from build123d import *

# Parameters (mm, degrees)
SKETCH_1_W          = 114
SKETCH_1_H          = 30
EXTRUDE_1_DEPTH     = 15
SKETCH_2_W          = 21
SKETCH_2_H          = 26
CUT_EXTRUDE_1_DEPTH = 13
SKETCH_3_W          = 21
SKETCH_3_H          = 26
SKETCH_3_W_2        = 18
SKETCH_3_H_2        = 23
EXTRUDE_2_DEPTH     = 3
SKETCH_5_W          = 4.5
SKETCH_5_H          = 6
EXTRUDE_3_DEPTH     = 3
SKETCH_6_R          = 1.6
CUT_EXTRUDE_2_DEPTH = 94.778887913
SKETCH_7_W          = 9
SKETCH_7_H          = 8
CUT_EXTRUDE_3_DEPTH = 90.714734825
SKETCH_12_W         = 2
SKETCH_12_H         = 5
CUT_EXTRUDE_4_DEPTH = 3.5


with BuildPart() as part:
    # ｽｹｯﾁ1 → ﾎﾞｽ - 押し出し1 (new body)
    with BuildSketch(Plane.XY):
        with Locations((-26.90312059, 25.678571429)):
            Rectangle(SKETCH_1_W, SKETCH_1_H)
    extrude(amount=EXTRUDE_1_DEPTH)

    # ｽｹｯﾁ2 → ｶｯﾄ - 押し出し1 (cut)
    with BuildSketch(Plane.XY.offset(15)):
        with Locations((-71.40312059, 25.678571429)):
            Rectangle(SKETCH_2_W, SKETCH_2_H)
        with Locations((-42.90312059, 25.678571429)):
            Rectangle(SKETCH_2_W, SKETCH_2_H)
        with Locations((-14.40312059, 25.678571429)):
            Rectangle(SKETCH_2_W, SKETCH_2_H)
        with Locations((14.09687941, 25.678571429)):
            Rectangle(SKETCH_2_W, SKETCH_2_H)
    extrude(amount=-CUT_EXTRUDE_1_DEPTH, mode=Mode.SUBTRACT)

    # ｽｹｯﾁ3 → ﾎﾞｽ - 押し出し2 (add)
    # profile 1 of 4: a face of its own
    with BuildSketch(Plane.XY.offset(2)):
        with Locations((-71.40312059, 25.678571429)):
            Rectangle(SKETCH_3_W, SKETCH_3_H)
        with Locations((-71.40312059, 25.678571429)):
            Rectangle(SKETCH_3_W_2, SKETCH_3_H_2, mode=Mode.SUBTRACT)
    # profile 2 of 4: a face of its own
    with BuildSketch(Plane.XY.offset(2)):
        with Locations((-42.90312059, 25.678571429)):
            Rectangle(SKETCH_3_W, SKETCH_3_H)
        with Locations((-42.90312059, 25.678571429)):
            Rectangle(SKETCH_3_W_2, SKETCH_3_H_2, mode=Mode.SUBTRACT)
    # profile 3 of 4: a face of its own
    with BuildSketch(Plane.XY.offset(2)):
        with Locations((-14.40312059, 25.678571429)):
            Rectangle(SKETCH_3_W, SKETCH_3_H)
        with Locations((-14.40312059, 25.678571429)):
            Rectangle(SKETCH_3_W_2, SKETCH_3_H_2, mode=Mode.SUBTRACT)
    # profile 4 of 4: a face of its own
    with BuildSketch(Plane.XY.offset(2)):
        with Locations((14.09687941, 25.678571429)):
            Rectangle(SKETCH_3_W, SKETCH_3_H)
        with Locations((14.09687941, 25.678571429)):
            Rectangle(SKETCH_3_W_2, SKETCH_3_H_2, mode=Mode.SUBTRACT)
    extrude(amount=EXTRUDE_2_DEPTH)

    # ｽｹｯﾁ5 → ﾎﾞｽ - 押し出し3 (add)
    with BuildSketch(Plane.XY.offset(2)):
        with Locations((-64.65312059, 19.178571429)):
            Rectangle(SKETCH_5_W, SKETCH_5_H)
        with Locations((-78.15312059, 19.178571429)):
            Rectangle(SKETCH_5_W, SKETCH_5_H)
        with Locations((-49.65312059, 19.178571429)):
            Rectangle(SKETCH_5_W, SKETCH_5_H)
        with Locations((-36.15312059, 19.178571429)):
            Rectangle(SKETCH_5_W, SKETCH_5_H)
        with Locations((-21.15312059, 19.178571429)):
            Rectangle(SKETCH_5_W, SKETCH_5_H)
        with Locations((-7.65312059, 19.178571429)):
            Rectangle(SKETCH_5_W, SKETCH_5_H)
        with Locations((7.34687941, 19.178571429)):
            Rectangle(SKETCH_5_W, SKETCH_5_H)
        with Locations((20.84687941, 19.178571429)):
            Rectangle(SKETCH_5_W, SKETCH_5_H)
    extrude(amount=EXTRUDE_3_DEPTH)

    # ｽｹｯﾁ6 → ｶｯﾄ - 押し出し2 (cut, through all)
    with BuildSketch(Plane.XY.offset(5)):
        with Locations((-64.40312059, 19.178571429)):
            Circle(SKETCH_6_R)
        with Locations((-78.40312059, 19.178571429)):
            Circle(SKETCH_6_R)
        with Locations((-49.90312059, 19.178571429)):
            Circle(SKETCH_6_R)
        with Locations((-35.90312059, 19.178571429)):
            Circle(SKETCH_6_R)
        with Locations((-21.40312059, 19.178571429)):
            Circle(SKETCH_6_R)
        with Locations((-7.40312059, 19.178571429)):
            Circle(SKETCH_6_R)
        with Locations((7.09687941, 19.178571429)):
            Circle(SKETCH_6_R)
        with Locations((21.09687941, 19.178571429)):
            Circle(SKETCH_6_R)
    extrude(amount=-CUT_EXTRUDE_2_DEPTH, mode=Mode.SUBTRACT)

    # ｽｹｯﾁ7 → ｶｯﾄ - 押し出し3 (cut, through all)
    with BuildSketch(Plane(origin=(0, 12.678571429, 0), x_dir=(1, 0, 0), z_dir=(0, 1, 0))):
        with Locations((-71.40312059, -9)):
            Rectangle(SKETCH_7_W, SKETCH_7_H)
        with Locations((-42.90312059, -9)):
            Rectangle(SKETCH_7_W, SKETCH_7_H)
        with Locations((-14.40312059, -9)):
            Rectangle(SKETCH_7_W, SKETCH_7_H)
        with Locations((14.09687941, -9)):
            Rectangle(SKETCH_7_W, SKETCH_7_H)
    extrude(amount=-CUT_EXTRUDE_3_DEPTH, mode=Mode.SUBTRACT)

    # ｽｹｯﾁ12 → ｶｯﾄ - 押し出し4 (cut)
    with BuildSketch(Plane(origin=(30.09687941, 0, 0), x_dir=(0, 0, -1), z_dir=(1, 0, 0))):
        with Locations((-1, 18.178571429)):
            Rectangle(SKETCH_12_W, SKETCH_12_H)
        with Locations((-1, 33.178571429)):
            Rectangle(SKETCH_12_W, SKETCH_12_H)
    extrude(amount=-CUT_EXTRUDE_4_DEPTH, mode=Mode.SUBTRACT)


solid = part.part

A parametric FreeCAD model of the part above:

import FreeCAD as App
import Part
import Sketcher

V = App.Vector
Q = App.Units.Quantity


def add_polygon(sketch, points):
    """Adds a closed chain of lines whose ends are joined by coincident constraints."""
    first, n = sketch.GeometryCount, len(points)
    for a, b in zip(points, points[1:] + points[:1]):
        sketch.addGeometry(Part.LineSegment(App.Vector(*a, 0), App.Vector(*b, 0)), False)
    for i in range(n):
        sketch.addConstraint(Sketcher.Constraint("Coincident", first + i, 2, first + (i + 1) % n, 1))

doc = App.newDocument("Part")
body = doc.addObject("PartDesign::Body", "Body")

# Sketch on XY plane
sketch1 = doc.addObject("Sketcher::SketchObject", "Sketch")
body.addObject(sketch1)
sketch1.AttachmentSupport = (doc.XY_Plane, [""])
sketch1.MapMode = "FlatFace"
add_polygon(sketch1, [(-83.903121, 40.678571), (-83.903121, 10.678571), (30.096879, 10.678571), (30.096879, 40.678571)])  # lines 0-3
sketch1.addConstraint([
    Sketcher.Constraint("Vertical", 0),
    Sketcher.Constraint("Horizontal", 1),
    Sketcher.Constraint("Vertical", 2),
    Sketcher.Constraint("Horizontal", 3),
    Sketcher.Constraint("DistanceX", 1, 1, 1, 2, Q("114 mm")),
    Sketcher.Constraint("DistanceY", 0, 2, 0, 1, Q("30 mm")),
    Sketcher.Constraint("DistanceX", 0, 2, -1, 1, Q("83.903121 mm")),
    Sketcher.Constraint("DistanceY", -1, 1, 0, 2, Q("10.678571 mm")),
])
pad1 = doc.addObject("PartDesign::Pad", "Pad")
body.addObject(pad1)
pad1.Profile = sketch1
pad1.Length = 15

# Sketch on XY plane
sketch2 = doc.addObject("Sketcher::SketchObject", "Sketch001")
body.addObject(sketch2)
sketch2.AttachmentSupport = (doc.XY_Plane, [""])
sketch2.MapMode = "FlatFace"
sketch2.AttachmentOffset = App.Placement(V(0, 0, 15), App.Rotation())
add_polygon(sketch2, [(-81.903121, 38.678571), (-81.903121, 12.678571), (-60.903121, 12.678571), (-60.903121, 38.678571)])  # lines 0-3
add_polygon(sketch2, [(-53.403121, 38.678571), (-53.403121, 12.678571), (-32.403121, 12.678571), (-32.403121, 38.678571)])  # lines 4-7
add_polygon(sketch2, [(-24.903121, 38.678571), (-24.903121, 12.678571), (-3.903121, 12.678571), (-3.903121, 38.678571)])  # lines 8-11
add_polygon(sketch2, [(3.596879, 38.678571), (3.596879, 12.678571), (24.596879, 12.678571), (24.596879, 38.678571)])  # lines 12-15
sketch2.addConstraint([
    Sketcher.Constraint("Vertical", 0),
    Sketcher.Constraint("Horizontal", 1),
    Sketcher.Constraint("Vertical", 2),
    Sketcher.Constraint("Horizontal", 3),
    Sketcher.Constraint("Vertical", 4),
    Sketcher.Constraint("Horizontal", 5),
    Sketcher.Constraint("Vertical", 6),
    Sketcher.Constraint("Horizontal", 7),
    Sketcher.Constraint("Vertical", 8),
    Sketcher.Constraint("Horizontal", 9),
    Sketcher.Constraint("Vertical", 10),
    Sketcher.Constraint("Horizontal", 11),
    Sketcher.Constraint("Vertical", 12),
    Sketcher.Constraint("Horizontal", 13),
    Sketcher.Constraint("Vertical", 14),
    Sketcher.Constraint("Horizontal", 15),
    Sketcher.Constraint("Horizontal", 1, 2, 4, 2),
    Sketcher.Constraint("Horizontal", 3, 2, 6, 2),
    Sketcher.Constraint("Horizontal", 5, 2, 8, 2),
    Sketcher.Constraint("Horizontal", 7, 2, 10, 2),
    Sketcher.Constraint("Horizontal", 9, 2, 12, 2),
    Sketcher.Constraint("Horizontal", 11, 2, 14, 2),
    Sketcher.Constraint("Equal", 3, 5),
    Sketcher.Constraint("Equal", 7, 9),
    Sketcher.Constraint("Equal", 11, 13),
    Sketcher.Constraint("DistanceX", 1, 1, 1, 2, Q("21 mm")),
    Sketcher.Constraint("DistanceY", 0, 2, 0, 1, Q("26 mm")),
    Sketcher.Constraint("DistanceX", 1, 2, 8, 2, Q("36 mm")),
    Sketcher.Constraint("DistanceX", 5, 2, 12, 2, Q("36 mm")),
    Sketcher.Constraint("DistanceX", 1, 2, 4, 2, Q("7.5 mm")),
    Sketcher.Constraint("DistanceX", 0, 2, -1, 1, Q("81.903121 mm")),
    Sketcher.Constraint("DistanceY", -1, 1, 0, 2, Q("12.678571 mm")),
])
pocket1 = doc.addObject("PartDesign::Pocket", "Pocket")
body.addObject(pocket1)
pocket1.Profile = sketch2
pocket1.Length = 13

# Sketch on XY plane
sketch3 = doc.addObject("Sketcher::SketchObject", "Sketch002")
body.addObject(sketch3)
sketch3.AttachmentSupport = (doc.XY_Plane, [""])
sketch3.MapMode = "FlatFace"
sketch3.AttachmentOffset = App.Placement(V(0, 0, 2), App.Rotation())
add_polygon(sketch3, [(-81.903121, 38.678571), (-81.903121, 12.678571), (-60.903121, 12.678571), (-60.903121, 38.678571)])  # lines 0-3
add_polygon(sketch3, [(-62.403121, 14.178571), (-80.403121, 14.178571), (-80.403121, 37.178571), (-62.403121, 37.178571)])  # lines 4-7
add_polygon(sketch3, [(-53.403121, 38.678571), (-53.403121, 12.678571), (-32.403121, 12.678571), (-32.403121, 38.678571)])  # lines 8-11
add_polygon(sketch3, [(-33.903121, 14.178571), (-51.903121, 14.178571), (-51.903121, 37.178571), (-33.903121, 37.178571)])  # lines 12-15
add_polygon(sketch3, [(-24.903121, 38.678571), (-24.903121, 12.678571), (-3.903121, 12.678571), (-3.903121, 38.678571)])  # lines 16-19
add_polygon(sketch3, [(-5.403121, 14.178571), (-23.403121, 14.178571), (-23.403121, 37.178571), (-5.403121, 37.178571)])  # lines 20-23
add_polygon(sketch3, [(3.596879, 38.678571), (3.596879, 12.678571), (24.596879, 12.678571), (24.596879, 38.678571)])  # lines 24-27
add_polygon(sketch3, [(23.096879, 14.178571), (5.096879, 14.178571), (5.096879, 37.178571), (23.096879, 37.178571)])  # lines 28-31
sketch3.addConstraint([
    Sketcher.Constraint("Vertical", 0),
    Sketcher.Constraint("Horizontal", 1),
    Sketcher.Constraint("Vertical", 2),
    Sketcher.Constraint("Horizontal", 3),
    Sketcher.Constraint("Horizontal", 4),
    Sketcher.Constraint("Vertical", 5),
    Sketcher.Constraint("Horizontal", 6),
    Sketcher.Constraint("Vertical", 7),
    Sketcher.Constraint("Vertical", 8),
    Sketcher.Constraint("Horizontal", 9),
    Sketcher.Constraint("Vertical", 10),
    Sketcher.Constraint("Horizontal", 11),
    Sketcher.Constraint("Horizontal", 12),
    Sketcher.Constraint("Vertical", 13),
    Sketcher.Constraint("Horizontal", 14),
    Sketcher.Constraint("Vertical", 15),
    Sketcher.Constraint("Vertical", 16),
    Sketcher.Constraint("Horizontal", 17),
    Sketcher.Constraint("Vertical", 18),
    Sketcher.Constraint("Horizontal", 19),
    Sketcher.Constraint("Horizontal", 20),
    Sketcher.Constraint("Vertical", 21),
    Sketcher.Constraint("Horizontal", 22),
    Sketcher.Constraint("Vertical", 23),
    Sketcher.Constraint("Vertical", 24),
    Sketcher.Constraint("Horizontal", 25),
    Sketcher.Constraint("Vertical", 26),
    Sketcher.Constraint("Horizontal", 27),
    Sketcher.Constraint("Horizontal", 28),
    Sketcher.Constraint("Vertical", 29),
    Sketcher.Constraint("Horizontal", 30),
    Sketcher.Constraint("Vertical", 31),
    Sketcher.Constraint("Horizontal", 1, 2, 8, 2),
    Sketcher.Constraint("Horizontal", 3, 2, 10, 2),
    Sketcher.Constraint("Horizontal", 7, 2, 12, 2),
    Sketcher.Constraint("Horizontal", 6, 2, 13, 2),
    Sketcher.Constraint("Horizontal", 9, 2, 16, 2),
    Sketcher.Constraint("Horizontal", 11, 2, 18, 2),
    Sketcher.Constraint("Horizontal", 15, 2, 20, 2),
    Sketcher.Constraint("Horizontal", 14, 2, 21, 2),
    Sketcher.Constraint("Horizontal", 17, 2, 24, 2),
    Sketcher.Constraint("Horizontal", 19, 2, 26, 2),
    Sketcher.Constraint("Horizontal", 23, 2, 28, 2),
    Sketcher.Constraint("Horizontal", 22, 2, 29, 2),
    Sketcher.Constraint("Equal", 3, 9),
    Sketcher.Constraint("Equal", 6, 12),
    Sketcher.Constraint("Equal", 11, 17),
    Sketcher.Constraint("Equal", 14, 20),
    Sketcher.Constraint("Equal", 19, 25),
    Sketcher.Constraint("Equal", 22, 28),
    Sketcher.Constraint("DistanceX", 1, 1, 1, 2, Q("21 mm")),
    Sketcher.Constraint("DistanceX", 4, 2, 4, 1, Q("18 mm")),
    Sketcher.Constraint("DistanceY", 0, 2, 0, 1, Q("26 mm")),
    Sketcher.Constraint("DistanceY", 5, 1, 5, 2, Q("23 mm")),
    Sketcher.Constraint("DistanceX", 7, 2, 8, 2, Q("9 mm")),
    Sketcher.Constraint("DistanceX", 1, 2, 12, 2, Q("9 mm")),
    Sketcher.Constraint("DistanceX", 15, 2, 16, 2, Q("9 mm")),
    Sketcher.Constraint("DistanceX", 9, 2, 20, 2, Q("9 mm")),
    Sketcher.Constraint("DistanceX", 23, 2, 24, 2, Q("9 mm")),
    Sketcher.Constraint("DistanceX", 17, 2, 28, 2, Q("9 mm")),
    Sketcher.Constraint("DistanceX", 0, 2, 4, 2, Q("1.5 mm")),
    Sketcher.Constraint("DistanceY", 0, 2, 4, 2, Q("1.5 mm")),
    Sketcher.Constraint("DistanceX", 0, 2, -1, 1, Q("81.903121 mm")),
    Sketcher.Constraint("DistanceY", -1, 1, 0, 2, Q("12.678571 mm")),
])
pad2 = doc.addObject("PartDesign::Pad", "Pad001")
body.addObject(pad2)
pad2.Profile = sketch3
pad2.Length = 3

# Sketch on XY plane
sketch4 = doc.addObject("Sketcher::SketchObject", "Sketch003")
body.addObject(sketch4)
sketch4.AttachmentSupport = (doc.XY_Plane, [""])
sketch4.MapMode = "FlatFace"
sketch4.AttachmentOffset = App.Placement(V(0, 0, 2), App.Rotation())
add_polygon(sketch4, [(-66.903121, 22.178571), (-66.903121, 16.178571), (-62.403121, 16.178571), (-62.403121, 22.178571)])  # lines 0-3
add_polygon(sketch4, [(-80.403121, 22.178571), (-80.403121, 16.178571), (-75.903121, 16.178571), (-75.903121, 22.178571)])  # lines 4-7
add_polygon(sketch4, [(-51.903121, 22.178571), (-51.903121, 16.178571), (-47.403121, 16.178571), (-47.403121, 22.178571)])  # lines 8-11
add_polygon(sketch4, [(-38.403121, 22.178571), (-38.403121, 16.178571), (-33.903121, 16.178571), (-33.903121, 22.178571)])  # lines 12-15
add_polygon(sketch4, [(-23.403121, 22.178571), (-23.403121, 16.178571), (-18.903121, 16.178571), (-18.903121, 22.178571)])  # lines 16-19
add_polygon(sketch4, [(-9.903121, 22.178571), (-9.903121, 16.178571), (-5.403121, 16.178571), (-5.403121, 22.178571)])  # lines 20-23
add_polygon(sketch4, [(5.096879, 22.178571), (5.096879, 16.178571), (9.596879, 16.178571), (9.596879, 22.178571)])  # lines 24-27
add_polygon(sketch4, [(18.596879, 22.178571), (18.596879, 16.178571), (23.096879, 16.178571), (23.096879, 22.178571)])  # lines 28-31
sketch4.addConstraint([
    Sketcher.Constraint("Vertical", 0),
    Sketcher.Constraint("Horizontal", 1),
    Sketcher.Constraint("Vertical", 2),
    Sketcher.Constraint("Horizontal", 3),
    Sketcher.Constraint("Vertical", 4),
    Sketcher.Constraint("Horizontal", 5),
    Sketcher.Constraint("Vertical", 6),
    Sketcher.Constraint("Horizontal", 7),
    Sketcher.Constraint("Vertical", 8),
    Sketcher.Constraint("Horizontal", 9),
    Sketcher.Constraint("Vertical", 10),
    Sketcher.Constraint("Horizontal", 11),
    Sketcher.Constraint("Vertical", 12),
    Sketcher.Constraint("Horizontal", 13),
    Sketcher.Constraint("Vertical", 14),
    Sketcher.Constraint("Horizontal", 15),
    Sketcher.Constraint("Vertical", 16),
    Sketcher.Constraint("Horizontal", 17),
    Sketcher.Constraint("Vertical", 18),
    Sketcher.Constraint("Horizontal", 19),
    Sketcher.Constraint("Vertical", 20),
    Sketcher.Constraint("Horizontal", 21),
    Sketcher.Constraint("Vertical", 22),
    Sketcher.Constraint("Horizontal", 23),
    Sketcher.Constraint("Vertical", 24),
    Sketcher.Constraint("Horizontal", 25),
    Sketcher.Constraint("Vertical", 26),
    Sketcher.Constraint("Horizontal", 27),
    Sketcher.Constraint("Vertical", 28),
    Sketcher.Constraint("Horizontal", 29),
    Sketcher.Constraint("Vertical", 30),
    Sketcher.Constraint("Horizontal", 31),
    Sketcher.Constraint("Horizontal", 1, 2, 4, 2),
    Sketcher.Constraint("Horizontal", 3, 2, 6, 2),
    Sketcher.Constraint("Horizontal", 5, 2, 8, 2),
    Sketcher.Constraint("Horizontal", 7, 2, 10, 2),
    Sketcher.Constraint("Horizontal", 9, 2, 12, 2),
    Sketcher.Constraint("Horizontal", 11, 2, 14, 2),
    Sketcher.Constraint("Horizontal", 13, 2, 16, 2),
    Sketcher.Constraint("Horizontal", 15, 2, 18, 2),
    Sketcher.Constraint("Horizontal", 17, 2, 20, 2),
    Sketcher.Constraint("Horizontal", 19, 2, 22, 2),
    Sketcher.Constraint("Horizontal", 21, 2, 24, 2),
    Sketcher.Constraint("Horizontal", 23, 2, 26, 2),
    Sketcher.Constraint("Horizontal", 25, 2, 28, 2),
    Sketcher.Constraint("Horizontal", 27, 2, 30, 2),
    Sketcher.Constraint("Equal", 3, 5),
    Sketcher.Constraint("Equal", 7, 9),
    Sketcher.Constraint("Equal", 11, 13),
    Sketcher.Constraint("Equal", 15, 17),
    Sketcher.Constraint("Equal", 19, 21),
    Sketcher.Constraint("Equal", 23, 25),
    Sketcher.Constraint("Equal", 27, 29),
    Sketcher.Constraint("DistanceY", 0, 2, 0, 1, Q("6 mm")),
    Sketcher.Constraint("DistanceX", 1, 1, 1, 2, Q("4.5 mm")),
    Sketcher.Constraint("DistanceX", 4, 2, 1, 2, Q("18 mm")),
    Sketcher.Constraint("DistanceX", 0, 2, 8, 2, Q("15 mm")),
    Sketcher.Constraint("DistanceX", 9, 2, 12, 2, Q("9 mm")),
    Sketcher.Constraint("DistanceX", 12, 2, 16, 2, Q("15 mm")),
    Sketcher.Constraint("DistanceX", 17, 2, 20, 2, Q("9 mm")),
    Sketcher.Constraint("DistanceX", 20, 2, 24, 2, Q("15 mm")),
    Sketcher.Constraint("DistanceX", 25, 2, 28, 2, Q("9 mm")),
    Sketcher.Constraint("DistanceX", 0, 2, -1, 1, Q("66.903121 mm")),
    Sketcher.Constraint("DistanceY", -1, 1, 0, 2, Q("16.178571 mm")),
])
pad3 = doc.addObject("PartDesign::Pad", "Pad002")
body.addObject(pad3)
pad3.Profile = sketch4
pad3.Length = 3

# Sketch on XY plane
sketch5 = doc.addObject("Sketcher::SketchObject", "Sketch004")
body.addObject(sketch5)
sketch5.AttachmentSupport = (doc.XY_Plane, [""])
sketch5.MapMode = "FlatFace"
sketch5.AttachmentOffset = App.Placement(V(0, 0, 5), App.Rotation())
sketch5.addGeometry([
    Part.Circle(V(-64.403121, 19.178571, 0), V(0, 0, 1), 1.6),  # 0
    Part.Circle(V(-78.403121, 19.178571, 0), V(0, 0, 1), 1.6),  # 1
    Part.Circle(V(-49.903121, 19.178571, 0), V(0, 0, 1), 1.6),  # 2
    Part.Circle(V(-35.903121, 19.178571, 0), V(0, 0, 1), 1.6),  # 3
    Part.Circle(V(-21.403121, 19.178571, 0), V(0, 0, 1), 1.6),  # 4
    Part.Circle(V(-7.403121, 19.178571, 0), V(0, 0, 1), 1.6),  # 5
    Part.Circle(V(7.096879, 19.178571, 0), V(0, 0, 1), 1.6),  # 6
    Part.Circle(V(21.096879, 19.178571, 0), V(0, 0, 1), 1.6),  # 7
], False)
sketch5.addConstraint([
    Sketcher.Constraint("Equal", 0, 1),
    Sketcher.Constraint("Equal", 1, 2),
    Sketcher.Constraint("Equal", 2, 3),
    Sketcher.Constraint("Equal", 3, 4),
    Sketcher.Constraint("Equal", 4, 5),
    Sketcher.Constraint("Equal", 5, 6),
    Sketcher.Constraint("Equal", 6, 7),
    Sketcher.Constraint("Horizontal", 0, 3, 1, 3),
    Sketcher.Constraint("Horizontal", 1, 3, 2, 3),
    Sketcher.Constraint("Horizontal", 2, 3, 3, 3),
    Sketcher.Constraint("Horizontal", 3, 3, 4, 3),
    Sketcher.Constraint("Horizontal", 4, 3, 5, 3),
    Sketcher.Constraint("Horizontal", 5, 3, 6, 3),
    Sketcher.Constraint("Horizontal", 6, 3, 7, 3),
    Sketcher.Constraint("Diameter", 0, Q("3.2 mm")),
    Sketcher.Constraint("DistanceX", 1, 3, 0, 3, Q("14 mm")),
    Sketcher.Constraint("DistanceX", 2, 3, 3, 3, Q("14 mm")),
    Sketcher.Constraint("DistanceX", 0, 3, 4, 3, Q("43 mm")),
    Sketcher.Constraint("DistanceX", 4, 3, 5, 3, Q("14 mm")),
    Sketcher.Constraint("DistanceX", 3, 3, 6, 3, Q("43 mm")),
    Sketcher.Constraint("DistanceX", 6, 3, 7, 3, Q("14 mm")),
    Sketcher.Constraint("DistanceX", 0, 3, 2, 3, Q("14.5 mm")),
    Sketcher.Constraint("DistanceX", 0, 3, -1, 1, Q("64.403121 mm")),
    Sketcher.Constraint("DistanceY", -1, 1, 0, 3, Q("19.178571 mm")),
])
pocket2 = doc.addObject("PartDesign::Pocket", "Pocket001")
body.addObject(pocket2)
pocket2.Profile = sketch5
pocket2.Type = "ThroughAll"

# Sketch on XZ plane
sketch6 = doc.addObject("Sketcher::SketchObject", "Sketch005")
body.addObject(sketch6)
sketch6.AttachmentSupport = (doc.XZ_Plane, [""])
sketch6.MapMode = "FlatFace"
sketch6.AttachmentOffset = App.Placement(V(0, 0, -12.678571), App.Rotation())
add_polygon(sketch6, [(-75.903121, 5), (-75.903121, 13), (-66.903121, 13), (-66.903121, 5)])  # lines 0-3
add_polygon(sketch6, [(-47.403121, 5), (-47.403121, 13), (-38.403121, 13), (-38.403121, 5)])  # lines 4-7
add_polygon(sketch6, [(-18.903121, 5), (-18.903121, 13), (-9.903121, 13), (-9.903121, 5)])  # lines 8-11
add_polygon(sketch6, [(9.596879, 5), (9.596879, 13), (18.596879, 13), (18.596879, 5)])  # lines 12-15
sketch6.addConstraint([
    Sketcher.Constraint("Vertical", 0),
    Sketcher.Constraint("Horizontal", 1),
    Sketcher.Constraint("Vertical", 2),
    Sketcher.Constraint("Horizontal", 3),
    Sketcher.Constraint("Vertical", 4),
    Sketcher.Constraint("Horizontal", 5),
    Sketcher.Constraint("Vertical", 6),
    Sketcher.Constraint("Horizontal", 7),
    Sketcher.Constraint("Vertical", 8),
    Sketcher.Constraint("Horizontal", 9),
    Sketcher.Constraint("Vertical", 10),
    Sketcher.Constraint("Horizontal", 11),
    Sketcher.Constraint("Vertical", 12),
    Sketcher.Constraint("Horizontal", 13),
    Sketcher.Constraint("Vertical", 14),
    Sketcher.Constraint("Horizontal", 15),
    Sketcher.Constraint("Horizontal", 1, 2, 4, 2),
    Sketcher.Constraint("Horizontal", 3, 2, 6, 2),
    Sketcher.Constraint("Horizontal", 5, 2, 8, 2),
    Sketcher.Constraint("Horizontal", 7, 2, 10, 2),
    Sketcher.Constraint("Horizontal", 9, 2, 12, 2),
    Sketcher.Constraint("Horizontal", 11, 2, 14, 2),
    Sketcher.Constraint("Equal", 3, 5),
    Sketcher.Constraint("Equal", 7, 9),
    Sketcher.Constraint("Equal", 11, 13),
    Sketcher.Constraint("DistanceX", 1, 1, 1, 2, Q("9 mm")),
    Sketcher.Constraint("DistanceY", 0, 1, 0, 2, Q("8 mm")),
    Sketcher.Constraint("DistanceY", -1, 1, 0, 2, Q("13 mm")),
    Sketcher.Constraint("DistanceX", 1, 2, 8, 2, Q("48 mm")),
    Sketcher.Constraint("DistanceX", 5, 2, 12, 2, Q("48 mm")),
    Sketcher.Constraint("DistanceX", 1, 2, 4, 2, Q("19.5 mm")),
    Sketcher.Constraint("DistanceX", 0, 2, -1, 1, Q("75.903121 mm")),
])
pocket3 = doc.addObject("PartDesign::Pocket", "Pocket002")
body.addObject(pocket3)
pocket3.Profile = sketch6
pocket3.Type = "ThroughAll"
pocket3.Reversed = True

# Sketch on YZ plane
sketch7 = doc.addObject("Sketcher::SketchObject", "Sketch006")
body.addObject(sketch7)
sketch7.AttachmentSupport = (doc.YZ_Plane, [""])
sketch7.MapMode = "FlatFace"
sketch7.AttachmentOffset = App.Placement(V(0, 0, 30.096879), App.Rotation())
add_polygon(sketch7, [(20.678571, 2), (15.678571, 2), (15.678571, 0), (20.678571, 0)])  # lines 0-3
add_polygon(sketch7, [(35.678571, 2), (30.678571, 2), (30.678571, 0), (35.678571, 0)])  # lines 4-7
sketch7.addConstraint([
    Sketcher.Constraint("Horizontal", 0),
    Sketcher.Constraint("Vertical", 1),
    Sketcher.Constraint("Horizontal", 2),
    Sketcher.Constraint("Vertical", 3),
    Sketcher.Constraint("Horizontal", 4),
    Sketcher.Constraint("Vertical", 5),
    Sketcher.Constraint("Horizontal", 6),
    Sketcher.Constraint("Vertical", 7),
    Sketcher.Constraint("PointOnObject", 1, 2, -1),
    Sketcher.Constraint("PointOnObject", 5, 2, -1),
    Sketcher.Constraint("Horizontal", 3, 2, 4, 2),
    Sketcher.Constraint("Equal", 2, 4),
    Sketcher.Constraint("DistanceX", 0, 2, 0, 1, Q("5 mm")),
    Sketcher.Constraint("DistanceY", 1, 2, 1, 1, Q("2 mm")),
    Sketcher.Constraint("DistanceX", 3, 2, 4, 2, Q("10 mm")),
    Sketcher.Constraint("DistanceX", -1, 1, 0, 2, Q("15.678571 mm")),
])
pocket4 = doc.addObject("PartDesign::Pocket", "Pocket003")
body.addObject(pocket4)
pocket4.Profile = sketch7
pocket4.Length = 3.5

doc.recompute()
